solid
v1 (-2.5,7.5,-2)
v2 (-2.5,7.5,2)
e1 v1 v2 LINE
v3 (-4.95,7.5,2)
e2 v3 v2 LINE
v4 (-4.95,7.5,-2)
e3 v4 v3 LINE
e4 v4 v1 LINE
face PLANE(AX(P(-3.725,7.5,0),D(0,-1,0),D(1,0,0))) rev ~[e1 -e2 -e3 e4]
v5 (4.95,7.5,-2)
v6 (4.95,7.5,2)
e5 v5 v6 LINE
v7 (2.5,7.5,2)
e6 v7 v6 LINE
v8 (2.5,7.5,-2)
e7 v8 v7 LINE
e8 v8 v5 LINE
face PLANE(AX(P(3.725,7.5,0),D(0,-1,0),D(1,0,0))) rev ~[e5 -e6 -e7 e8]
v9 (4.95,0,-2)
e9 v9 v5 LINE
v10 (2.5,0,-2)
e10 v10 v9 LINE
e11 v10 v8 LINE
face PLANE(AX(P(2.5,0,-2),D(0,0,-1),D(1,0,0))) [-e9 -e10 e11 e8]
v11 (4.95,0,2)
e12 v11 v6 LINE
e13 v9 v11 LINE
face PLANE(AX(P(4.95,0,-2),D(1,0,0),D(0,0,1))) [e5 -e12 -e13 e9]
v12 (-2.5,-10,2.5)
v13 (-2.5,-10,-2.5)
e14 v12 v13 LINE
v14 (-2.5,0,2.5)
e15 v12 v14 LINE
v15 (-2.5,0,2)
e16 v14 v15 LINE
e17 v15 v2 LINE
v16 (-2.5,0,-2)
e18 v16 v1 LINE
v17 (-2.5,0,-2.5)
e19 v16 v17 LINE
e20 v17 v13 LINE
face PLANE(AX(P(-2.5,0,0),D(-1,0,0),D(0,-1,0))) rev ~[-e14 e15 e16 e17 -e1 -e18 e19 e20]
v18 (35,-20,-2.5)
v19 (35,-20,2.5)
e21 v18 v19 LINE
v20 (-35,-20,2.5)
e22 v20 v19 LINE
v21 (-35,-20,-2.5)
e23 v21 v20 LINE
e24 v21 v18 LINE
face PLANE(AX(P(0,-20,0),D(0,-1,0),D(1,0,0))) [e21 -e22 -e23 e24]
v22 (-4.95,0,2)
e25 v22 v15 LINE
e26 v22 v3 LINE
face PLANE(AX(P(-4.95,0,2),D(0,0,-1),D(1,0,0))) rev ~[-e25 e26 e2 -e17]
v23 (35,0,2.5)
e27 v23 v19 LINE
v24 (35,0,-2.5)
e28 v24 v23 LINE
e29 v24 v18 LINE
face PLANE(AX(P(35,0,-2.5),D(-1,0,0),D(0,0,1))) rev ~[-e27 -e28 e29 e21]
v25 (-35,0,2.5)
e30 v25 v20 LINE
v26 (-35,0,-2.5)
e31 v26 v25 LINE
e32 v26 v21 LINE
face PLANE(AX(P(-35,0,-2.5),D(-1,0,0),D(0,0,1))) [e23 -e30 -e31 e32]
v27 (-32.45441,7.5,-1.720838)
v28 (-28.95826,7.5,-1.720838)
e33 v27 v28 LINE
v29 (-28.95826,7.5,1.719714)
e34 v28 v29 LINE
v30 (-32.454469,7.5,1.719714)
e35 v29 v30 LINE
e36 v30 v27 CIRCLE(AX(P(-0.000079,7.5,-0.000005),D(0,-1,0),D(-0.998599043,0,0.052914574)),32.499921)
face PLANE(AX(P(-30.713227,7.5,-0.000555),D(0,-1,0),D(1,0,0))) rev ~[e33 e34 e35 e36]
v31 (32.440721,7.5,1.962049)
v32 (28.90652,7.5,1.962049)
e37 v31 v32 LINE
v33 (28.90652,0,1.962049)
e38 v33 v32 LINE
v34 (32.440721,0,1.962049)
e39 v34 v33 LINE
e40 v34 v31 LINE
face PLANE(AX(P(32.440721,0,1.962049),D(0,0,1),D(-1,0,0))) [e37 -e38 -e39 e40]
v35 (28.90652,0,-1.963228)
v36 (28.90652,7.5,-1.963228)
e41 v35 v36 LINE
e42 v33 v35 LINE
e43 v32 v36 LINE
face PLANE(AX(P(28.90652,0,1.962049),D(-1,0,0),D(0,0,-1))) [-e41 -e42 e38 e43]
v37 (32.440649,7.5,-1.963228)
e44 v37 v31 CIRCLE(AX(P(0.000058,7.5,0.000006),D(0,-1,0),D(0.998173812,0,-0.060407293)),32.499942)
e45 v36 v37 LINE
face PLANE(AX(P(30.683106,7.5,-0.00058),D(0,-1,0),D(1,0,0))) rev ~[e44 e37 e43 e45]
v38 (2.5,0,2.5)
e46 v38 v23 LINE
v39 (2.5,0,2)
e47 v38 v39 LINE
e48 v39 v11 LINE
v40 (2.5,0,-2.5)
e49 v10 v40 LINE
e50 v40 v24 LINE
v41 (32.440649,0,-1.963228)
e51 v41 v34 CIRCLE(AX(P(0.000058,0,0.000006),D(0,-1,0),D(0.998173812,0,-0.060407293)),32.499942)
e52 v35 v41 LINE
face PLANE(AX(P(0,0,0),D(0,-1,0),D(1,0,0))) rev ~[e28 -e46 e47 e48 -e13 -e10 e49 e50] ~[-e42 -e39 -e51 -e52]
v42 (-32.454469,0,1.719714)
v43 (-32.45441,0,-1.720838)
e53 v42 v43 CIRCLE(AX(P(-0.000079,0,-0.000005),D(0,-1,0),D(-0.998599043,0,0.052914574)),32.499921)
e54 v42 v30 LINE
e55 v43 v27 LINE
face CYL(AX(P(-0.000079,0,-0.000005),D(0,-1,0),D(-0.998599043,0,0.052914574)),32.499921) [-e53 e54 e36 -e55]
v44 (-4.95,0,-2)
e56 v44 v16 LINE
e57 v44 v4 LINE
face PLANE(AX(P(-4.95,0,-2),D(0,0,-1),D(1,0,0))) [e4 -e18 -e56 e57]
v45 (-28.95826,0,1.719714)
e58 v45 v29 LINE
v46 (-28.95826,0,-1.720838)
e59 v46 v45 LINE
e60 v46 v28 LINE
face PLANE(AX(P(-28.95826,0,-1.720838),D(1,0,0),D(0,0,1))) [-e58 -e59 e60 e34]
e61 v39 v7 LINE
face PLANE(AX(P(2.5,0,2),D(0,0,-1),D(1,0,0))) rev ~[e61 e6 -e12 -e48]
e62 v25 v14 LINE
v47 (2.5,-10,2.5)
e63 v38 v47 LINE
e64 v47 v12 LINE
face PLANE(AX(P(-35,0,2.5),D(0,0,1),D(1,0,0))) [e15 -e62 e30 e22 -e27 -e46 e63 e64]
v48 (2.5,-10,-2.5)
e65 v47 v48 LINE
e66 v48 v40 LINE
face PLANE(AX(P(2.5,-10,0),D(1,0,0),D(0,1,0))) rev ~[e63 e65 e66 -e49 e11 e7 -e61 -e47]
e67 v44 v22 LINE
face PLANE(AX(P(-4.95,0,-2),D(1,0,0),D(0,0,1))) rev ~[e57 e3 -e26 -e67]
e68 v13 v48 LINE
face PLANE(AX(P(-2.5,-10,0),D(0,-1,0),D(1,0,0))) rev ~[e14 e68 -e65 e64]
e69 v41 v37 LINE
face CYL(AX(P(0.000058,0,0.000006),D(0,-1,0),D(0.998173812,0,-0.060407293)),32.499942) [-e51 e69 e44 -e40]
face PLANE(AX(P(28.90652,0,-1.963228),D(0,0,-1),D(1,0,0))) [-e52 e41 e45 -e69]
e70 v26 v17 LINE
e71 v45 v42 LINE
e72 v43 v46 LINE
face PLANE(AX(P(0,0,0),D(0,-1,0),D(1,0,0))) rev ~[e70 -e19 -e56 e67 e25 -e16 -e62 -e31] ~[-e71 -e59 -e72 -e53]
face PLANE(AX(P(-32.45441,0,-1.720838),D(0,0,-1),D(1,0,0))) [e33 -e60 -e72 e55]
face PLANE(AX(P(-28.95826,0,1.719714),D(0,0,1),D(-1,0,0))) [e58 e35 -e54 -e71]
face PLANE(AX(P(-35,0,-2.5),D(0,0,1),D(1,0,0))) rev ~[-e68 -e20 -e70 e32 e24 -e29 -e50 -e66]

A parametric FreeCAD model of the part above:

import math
import FreeCAD as App
import Part
import Sketcher

doc = App.newDocument("Part")
body = doc.addObject("PartDesign::Body", "Body")

# Sketch on XZ plane
sketch1 = body.newObject("Sketcher::SketchObject", "Sketch")
sketch1.AttachmentSupport = (doc.getObject("XZ_Plane"), [""])
sketch1.MapMode = "FlatFace"
sketch1.addGeometry([
    Part.LineSegment(App.Vector(-35, 2, 0), App.Vector(-35, -2, 0)),
    Part.LineSegment(App.Vector(-35, -2, 0), App.Vector(35, -2, 0)),
    Part.LineSegment(App.Vector(35, -2, 0), App.Vector(35, 2, 0)),
    Part.LineSegment(App.Vector(35, 2, 0), App.Vector(-35, 2, 0)),
], False)
sketch1.addConstraint([
    Sketcher.Constraint("Coincident", 0, 2, 1, 1),
    Sketcher.Constraint("Coincident", 1, 2, 2, 1),
    Sketcher.Constraint("Coincident", 2, 2, 3, 1),
    Sketcher.Constraint("Coincident", 3, 2, 0, 1),
    Sketcher.Constraint("Vertical", 0),
    Sketcher.Constraint("Horizontal", 1),
    Sketcher.Constraint("Vertical", 2),
    Sketcher.Constraint("Horizontal", 3),
    Sketcher.Constraint("Symmetric", 0, 2, 2, 2, -1, 1),
    Sketcher.Constraint("DistanceX", 1, 1, 1, 2, 70.0),
    Sketcher.Constraint("DistanceY", 0, 2, 0, 1, 5.0),
])
pad1 = body.newObject("PartDesign::Pad", "Pad")
pad1.Profile = sketch1
pad1.Length = 20

# Sketch on XY plane
sketch2 = body.newObject("Sketcher::SketchObject", "Sketch001")
sketch2.AttachmentSupport = (doc.getObject("XY_Plane"), [""])
sketch2.MapMode = "FlatFace"
sketch2.addGeometry([
    Part.LineSegment(App.Vector(2, 0, 0), App.Vector(-2, 0, 0)),
    Part.LineSegment(App.Vector(-2, 0, 0), App.Vector(-2, -10, 0)),
    Part.LineSegment(App.Vector(-2, -10, 0), App.Vector(2, -10, 0)),
    Part.LineSegment(App.Vector(2, -10, 0), App.Vector(2, 0, 0)),
], False)
sketch2.addConstraint([
    Sketcher.Constraint("Coincident", 0, 2, 1, 1),
    Sketcher.Constraint("Coincident", 1, 2, 2, 1),
    Sketcher.Constraint("Coincident", 2, 2, 3, 1),
    Sketcher.Constraint("Coincident", 3, 2, 0, 1),
    Sketcher.Constraint("Horizontal", 0),
    Sketcher.Constraint("Vertical", 1),
    Sketcher.Constraint("Horizontal", 2),
    Sketcher.Constraint("Vertical", 3),
    Sketcher.Constraint("Symmetric", 0, 2, 3, 2, -1, 1),
    Sketcher.Constraint("DistanceX", 0, 2, 0, 1, 5.0),
    Sketcher.Constraint("DistanceY", 1, 2, 1, 1, 10.0),
])
pocket1 = body.newObject("PartDesign::Pocket", "Pocket")
pocket1.Profile = sketch2
pocket1.Type = "ThroughAll"

# Sketch on XY plane
sketch3 = body.newObject("Sketcher::SketchObject", "Sketch002")
sketch3.AttachmentSupport = (doc.getObject("XY_Plane"), [""])
sketch3.MapMode = "FlatFace"
sketch3.addGeometry([
    Part.LineSegment(App.Vector(2, 0, 0), App.Vector(-2, 0, 0)),
    Part.LineSegment(App.Vector(-2, 0, 0), App.Vector(-2, -10, 0)),
    Part.LineSegment(App.Vector(-2, -10, 0), App.Vector(2, -10, 0)),
    Part.LineSegment(App.Vector(2, -10, 0), App.Vector(2, 0, 0)),
], False)
sketch3.addConstraint([
    Sketcher.Constraint("Coincident", 0, 2, 1, 1),
    Sketcher.Constraint("Coincident", 1, 2, 2, 1),
    Sketcher.Constraint("Coincident", 2, 2, 3, 1),
    Sketcher.Constraint("Coincident", 3, 2, 0, 1),
    Sketcher.Constraint("Horizontal", 0),
    Sketcher.Constraint("Vertical", 1),
    Sketcher.Constraint("Horizontal", 2),
    Sketcher.Constraint("Vertical", 3),
    Sketcher.Constraint("Symmetric", 0, 2, 3, 2, -1, 1),
    Sketcher.Constraint("DistanceX", 0, 2, 0, 1, 5.0),
    Sketcher.Constraint("DistanceY", 1, 2, 1, 1, 10.0),
])
pocket2 = body.newObject("PartDesign::Pocket", "Pocket001")
pocket2.Profile = sketch3
pocket2.Type = "ThroughAll"
pocket2.Reversed = True

# Sketch on XZ plane
sketch4 = body.newObject("Sketcher::SketchObject", "Sketch003")
sketch4.AttachmentSupport = (doc.getObject("XZ_Plane"), [""])
sketch4.MapMode = "FlatFace"
sketch4.addGeometry([
    Part.LineSegment(App.Vector(28.9, -2, 0), App.Vector(32.4, -2, 0)),  # 0
    Part.ArcOfCircle(Part.Circle(App.Vector(0, 0, 0), App.Vector(0, 0, 1), 32.5), math.radians(-3.46), math.radians(3.46)),  # 1
    Part.LineSegment(App.Vector(32.4, 2, 0), App.Vector(28.9, 2, 0)),  # 2
    Part.LineSegment(App.Vector(28.9, 2, 0), App.Vector(28.9, -2, 0)),  # 3
    Part.LineSegment(App.Vector(-29, 1.7, 0), App.Vector(-32.5, 1.7, 0)),  # 4
    Part.ArcOfCircle(Part.Circle(App.Vector(0, 0, 0), App.Vector(0, 0, 1), 32.5), math.radians(176.97), math.radians(183.04)),  # 5
    Part.LineSegment(App.Vector(-32.5, -1.7, 0), App.Vector(-29, -1.7, 0)),  # 6
    Part.LineSegment(App.Vector(-29, -1.7, 0), App.Vector(-29, 1.7, 0)),  # 7
    Part.LineSegment(App.Vector(-5, 2, 0), App.Vector(-5, -2, 0)),  # 8
    Part.LineSegment(App.Vector(-5, -2, 0), App.Vector(-2.5, -2, 0)),  # 9
    Part.LineSegment(App.Vector(-2.5, -2, 0), App.Vector(-2.5, 2, 0)),  # 10
    Part.LineSegment(App.Vector(-2.5, 2, 0), App.Vector(-5, 2, 0)),  # 11
    Part.LineSegment(App.Vector(2.5, 2, 0), App.Vector(2.5, -2, 0)),  # 12
    Part.LineSegment(App.Vector(2.5, -2, 0), App.Vector(5, -2, 0)),  # 13
    Part.LineSegment(App.Vector(5, -2, 0), App.Vector(5, 2, 0)),  # 14
    Part.LineSegment(App.Vector(5, 2, 0), App.Vector(2.5, 2, 0)),  # 15
], False)
sketch4.addConstraint([
    Sketcher.Constraint("Coincident", 0, 2, 1, 1),
    Sketcher.Constraint("Coincident", 1, 2, 2, 1),
    Sketcher.Constraint("Coincident", 2, 2, 3, 1),
    Sketcher.Constraint("Coincident", 3, 2, 0, 1),
    Sketcher.Constraint("Coincident", 4, 2, 5, 1),
    Sketcher.Constraint("Coincident", 5, 2, 6, 1),
    Sketcher.Constraint("Coincident", 6, 2, 7, 1),
    Sketcher.Constraint("Coincident", 7, 2, 4, 1),
    Sketcher.Constraint("Coincident", 8, 2, 9, 1),
    Sketcher.Constraint("Coincident", 9, 2, 10, 1),
    Sketcher.Constraint("Coincident", 10, 2, 11, 1),
    Sketcher.Constraint("Coincident", 11, 2, 8, 1),
    Sketcher.Constraint("Coincident", 12, 2, 13, 1),
    Sketcher.Constraint("Coincident", 13, 2, 14, 1),
    Sketcher.Constraint("Coincident", 14, 2, 15, 1),
    Sketcher.Constraint("Coincident", 15, 2, 12, 1),
    Sketcher.Constraint("Horizontal", 0),
    Sketcher.Constraint("Horizontal", 2),
    Sketcher.Constraint("Vertical", 3),
    Sketcher.Constraint("Horizontal", 4),
    Sketcher.Constraint("Horizontal", 6),
    Sketcher.Constraint("Vertical", 7),
    Sketcher.Constraint("Vertical", 8),
    Sketcher.Constraint("Horizontal", 9),
    Sketcher.Constraint("Vertical", 10),
    Sketcher.Constraint("Horizontal", 11),
    Sketcher.Constraint("Vertical", 12),
    Sketcher.Constraint("Horizontal", 13),
    Sketcher.Constraint("Vertical", 14),
    Sketcher.Constraint("Horizontal", 15),
    Sketcher.Constraint("Symmetric", 10, 2, 12, 2, -1, 1),
    Sketcher.Constraint("Symmetric", 8, 2, 14, 2, -1, 1),
    Sketcher.Constraint("Horizontal", 9, 2, 12, 2),
    Sketcher.Constraint("DistanceY", 8, 2, 8, 1, 4.0),
    Sketcher.Constraint("DistanceX", 9, 2, 12, 2, 5.0),
    Sketcher.Constraint("DistanceX", 9, 1, 9, 2, 2.45),
    Sketcher.Constraint("Radius", 5, 32.499921),
    Sketcher.Constraint("DistanceX", 2, 2, 2, 1, 3.534201),
    Sketcher.Constraint("Radius", 1, 32.499942),
    Sketcher.Constraint("DistanceX", 0, 1, 0, 2, 3.534129),
    Sketcher.Constraint("DistanceX", 4, 2, 4, 1, 3.496209),
    Sketcher.Constraint("DistanceX", 6, 1, 6, 2, 3.49615),
    Sketcher.Constraint("DistanceX", 5, 3, 1, 2, 32.4408),
    Sketcher.Constraint("DistanceY", 3, 2, 3, 1, 3.925277),
    Sketcher.Constraint("DistanceY", 7, 1, 7, 2, 3.440552),
    Sketcher.Constraint("DistanceX", -1, 1, 0, 2, 32.440649),
    Sketcher.Constraint("DistanceY", -1, 1, 1, 2, 1.962049),
    Sketcher.Constraint("DistanceY", 5, 2, -1, 1, 1.720838),
])
pad2 = body.newObject("PartDesign::Pad", "Pad001")
pad2.Profile = sketch4
pad2.Length = 7.5
pad2.Reversed = True

doc.recompute()
